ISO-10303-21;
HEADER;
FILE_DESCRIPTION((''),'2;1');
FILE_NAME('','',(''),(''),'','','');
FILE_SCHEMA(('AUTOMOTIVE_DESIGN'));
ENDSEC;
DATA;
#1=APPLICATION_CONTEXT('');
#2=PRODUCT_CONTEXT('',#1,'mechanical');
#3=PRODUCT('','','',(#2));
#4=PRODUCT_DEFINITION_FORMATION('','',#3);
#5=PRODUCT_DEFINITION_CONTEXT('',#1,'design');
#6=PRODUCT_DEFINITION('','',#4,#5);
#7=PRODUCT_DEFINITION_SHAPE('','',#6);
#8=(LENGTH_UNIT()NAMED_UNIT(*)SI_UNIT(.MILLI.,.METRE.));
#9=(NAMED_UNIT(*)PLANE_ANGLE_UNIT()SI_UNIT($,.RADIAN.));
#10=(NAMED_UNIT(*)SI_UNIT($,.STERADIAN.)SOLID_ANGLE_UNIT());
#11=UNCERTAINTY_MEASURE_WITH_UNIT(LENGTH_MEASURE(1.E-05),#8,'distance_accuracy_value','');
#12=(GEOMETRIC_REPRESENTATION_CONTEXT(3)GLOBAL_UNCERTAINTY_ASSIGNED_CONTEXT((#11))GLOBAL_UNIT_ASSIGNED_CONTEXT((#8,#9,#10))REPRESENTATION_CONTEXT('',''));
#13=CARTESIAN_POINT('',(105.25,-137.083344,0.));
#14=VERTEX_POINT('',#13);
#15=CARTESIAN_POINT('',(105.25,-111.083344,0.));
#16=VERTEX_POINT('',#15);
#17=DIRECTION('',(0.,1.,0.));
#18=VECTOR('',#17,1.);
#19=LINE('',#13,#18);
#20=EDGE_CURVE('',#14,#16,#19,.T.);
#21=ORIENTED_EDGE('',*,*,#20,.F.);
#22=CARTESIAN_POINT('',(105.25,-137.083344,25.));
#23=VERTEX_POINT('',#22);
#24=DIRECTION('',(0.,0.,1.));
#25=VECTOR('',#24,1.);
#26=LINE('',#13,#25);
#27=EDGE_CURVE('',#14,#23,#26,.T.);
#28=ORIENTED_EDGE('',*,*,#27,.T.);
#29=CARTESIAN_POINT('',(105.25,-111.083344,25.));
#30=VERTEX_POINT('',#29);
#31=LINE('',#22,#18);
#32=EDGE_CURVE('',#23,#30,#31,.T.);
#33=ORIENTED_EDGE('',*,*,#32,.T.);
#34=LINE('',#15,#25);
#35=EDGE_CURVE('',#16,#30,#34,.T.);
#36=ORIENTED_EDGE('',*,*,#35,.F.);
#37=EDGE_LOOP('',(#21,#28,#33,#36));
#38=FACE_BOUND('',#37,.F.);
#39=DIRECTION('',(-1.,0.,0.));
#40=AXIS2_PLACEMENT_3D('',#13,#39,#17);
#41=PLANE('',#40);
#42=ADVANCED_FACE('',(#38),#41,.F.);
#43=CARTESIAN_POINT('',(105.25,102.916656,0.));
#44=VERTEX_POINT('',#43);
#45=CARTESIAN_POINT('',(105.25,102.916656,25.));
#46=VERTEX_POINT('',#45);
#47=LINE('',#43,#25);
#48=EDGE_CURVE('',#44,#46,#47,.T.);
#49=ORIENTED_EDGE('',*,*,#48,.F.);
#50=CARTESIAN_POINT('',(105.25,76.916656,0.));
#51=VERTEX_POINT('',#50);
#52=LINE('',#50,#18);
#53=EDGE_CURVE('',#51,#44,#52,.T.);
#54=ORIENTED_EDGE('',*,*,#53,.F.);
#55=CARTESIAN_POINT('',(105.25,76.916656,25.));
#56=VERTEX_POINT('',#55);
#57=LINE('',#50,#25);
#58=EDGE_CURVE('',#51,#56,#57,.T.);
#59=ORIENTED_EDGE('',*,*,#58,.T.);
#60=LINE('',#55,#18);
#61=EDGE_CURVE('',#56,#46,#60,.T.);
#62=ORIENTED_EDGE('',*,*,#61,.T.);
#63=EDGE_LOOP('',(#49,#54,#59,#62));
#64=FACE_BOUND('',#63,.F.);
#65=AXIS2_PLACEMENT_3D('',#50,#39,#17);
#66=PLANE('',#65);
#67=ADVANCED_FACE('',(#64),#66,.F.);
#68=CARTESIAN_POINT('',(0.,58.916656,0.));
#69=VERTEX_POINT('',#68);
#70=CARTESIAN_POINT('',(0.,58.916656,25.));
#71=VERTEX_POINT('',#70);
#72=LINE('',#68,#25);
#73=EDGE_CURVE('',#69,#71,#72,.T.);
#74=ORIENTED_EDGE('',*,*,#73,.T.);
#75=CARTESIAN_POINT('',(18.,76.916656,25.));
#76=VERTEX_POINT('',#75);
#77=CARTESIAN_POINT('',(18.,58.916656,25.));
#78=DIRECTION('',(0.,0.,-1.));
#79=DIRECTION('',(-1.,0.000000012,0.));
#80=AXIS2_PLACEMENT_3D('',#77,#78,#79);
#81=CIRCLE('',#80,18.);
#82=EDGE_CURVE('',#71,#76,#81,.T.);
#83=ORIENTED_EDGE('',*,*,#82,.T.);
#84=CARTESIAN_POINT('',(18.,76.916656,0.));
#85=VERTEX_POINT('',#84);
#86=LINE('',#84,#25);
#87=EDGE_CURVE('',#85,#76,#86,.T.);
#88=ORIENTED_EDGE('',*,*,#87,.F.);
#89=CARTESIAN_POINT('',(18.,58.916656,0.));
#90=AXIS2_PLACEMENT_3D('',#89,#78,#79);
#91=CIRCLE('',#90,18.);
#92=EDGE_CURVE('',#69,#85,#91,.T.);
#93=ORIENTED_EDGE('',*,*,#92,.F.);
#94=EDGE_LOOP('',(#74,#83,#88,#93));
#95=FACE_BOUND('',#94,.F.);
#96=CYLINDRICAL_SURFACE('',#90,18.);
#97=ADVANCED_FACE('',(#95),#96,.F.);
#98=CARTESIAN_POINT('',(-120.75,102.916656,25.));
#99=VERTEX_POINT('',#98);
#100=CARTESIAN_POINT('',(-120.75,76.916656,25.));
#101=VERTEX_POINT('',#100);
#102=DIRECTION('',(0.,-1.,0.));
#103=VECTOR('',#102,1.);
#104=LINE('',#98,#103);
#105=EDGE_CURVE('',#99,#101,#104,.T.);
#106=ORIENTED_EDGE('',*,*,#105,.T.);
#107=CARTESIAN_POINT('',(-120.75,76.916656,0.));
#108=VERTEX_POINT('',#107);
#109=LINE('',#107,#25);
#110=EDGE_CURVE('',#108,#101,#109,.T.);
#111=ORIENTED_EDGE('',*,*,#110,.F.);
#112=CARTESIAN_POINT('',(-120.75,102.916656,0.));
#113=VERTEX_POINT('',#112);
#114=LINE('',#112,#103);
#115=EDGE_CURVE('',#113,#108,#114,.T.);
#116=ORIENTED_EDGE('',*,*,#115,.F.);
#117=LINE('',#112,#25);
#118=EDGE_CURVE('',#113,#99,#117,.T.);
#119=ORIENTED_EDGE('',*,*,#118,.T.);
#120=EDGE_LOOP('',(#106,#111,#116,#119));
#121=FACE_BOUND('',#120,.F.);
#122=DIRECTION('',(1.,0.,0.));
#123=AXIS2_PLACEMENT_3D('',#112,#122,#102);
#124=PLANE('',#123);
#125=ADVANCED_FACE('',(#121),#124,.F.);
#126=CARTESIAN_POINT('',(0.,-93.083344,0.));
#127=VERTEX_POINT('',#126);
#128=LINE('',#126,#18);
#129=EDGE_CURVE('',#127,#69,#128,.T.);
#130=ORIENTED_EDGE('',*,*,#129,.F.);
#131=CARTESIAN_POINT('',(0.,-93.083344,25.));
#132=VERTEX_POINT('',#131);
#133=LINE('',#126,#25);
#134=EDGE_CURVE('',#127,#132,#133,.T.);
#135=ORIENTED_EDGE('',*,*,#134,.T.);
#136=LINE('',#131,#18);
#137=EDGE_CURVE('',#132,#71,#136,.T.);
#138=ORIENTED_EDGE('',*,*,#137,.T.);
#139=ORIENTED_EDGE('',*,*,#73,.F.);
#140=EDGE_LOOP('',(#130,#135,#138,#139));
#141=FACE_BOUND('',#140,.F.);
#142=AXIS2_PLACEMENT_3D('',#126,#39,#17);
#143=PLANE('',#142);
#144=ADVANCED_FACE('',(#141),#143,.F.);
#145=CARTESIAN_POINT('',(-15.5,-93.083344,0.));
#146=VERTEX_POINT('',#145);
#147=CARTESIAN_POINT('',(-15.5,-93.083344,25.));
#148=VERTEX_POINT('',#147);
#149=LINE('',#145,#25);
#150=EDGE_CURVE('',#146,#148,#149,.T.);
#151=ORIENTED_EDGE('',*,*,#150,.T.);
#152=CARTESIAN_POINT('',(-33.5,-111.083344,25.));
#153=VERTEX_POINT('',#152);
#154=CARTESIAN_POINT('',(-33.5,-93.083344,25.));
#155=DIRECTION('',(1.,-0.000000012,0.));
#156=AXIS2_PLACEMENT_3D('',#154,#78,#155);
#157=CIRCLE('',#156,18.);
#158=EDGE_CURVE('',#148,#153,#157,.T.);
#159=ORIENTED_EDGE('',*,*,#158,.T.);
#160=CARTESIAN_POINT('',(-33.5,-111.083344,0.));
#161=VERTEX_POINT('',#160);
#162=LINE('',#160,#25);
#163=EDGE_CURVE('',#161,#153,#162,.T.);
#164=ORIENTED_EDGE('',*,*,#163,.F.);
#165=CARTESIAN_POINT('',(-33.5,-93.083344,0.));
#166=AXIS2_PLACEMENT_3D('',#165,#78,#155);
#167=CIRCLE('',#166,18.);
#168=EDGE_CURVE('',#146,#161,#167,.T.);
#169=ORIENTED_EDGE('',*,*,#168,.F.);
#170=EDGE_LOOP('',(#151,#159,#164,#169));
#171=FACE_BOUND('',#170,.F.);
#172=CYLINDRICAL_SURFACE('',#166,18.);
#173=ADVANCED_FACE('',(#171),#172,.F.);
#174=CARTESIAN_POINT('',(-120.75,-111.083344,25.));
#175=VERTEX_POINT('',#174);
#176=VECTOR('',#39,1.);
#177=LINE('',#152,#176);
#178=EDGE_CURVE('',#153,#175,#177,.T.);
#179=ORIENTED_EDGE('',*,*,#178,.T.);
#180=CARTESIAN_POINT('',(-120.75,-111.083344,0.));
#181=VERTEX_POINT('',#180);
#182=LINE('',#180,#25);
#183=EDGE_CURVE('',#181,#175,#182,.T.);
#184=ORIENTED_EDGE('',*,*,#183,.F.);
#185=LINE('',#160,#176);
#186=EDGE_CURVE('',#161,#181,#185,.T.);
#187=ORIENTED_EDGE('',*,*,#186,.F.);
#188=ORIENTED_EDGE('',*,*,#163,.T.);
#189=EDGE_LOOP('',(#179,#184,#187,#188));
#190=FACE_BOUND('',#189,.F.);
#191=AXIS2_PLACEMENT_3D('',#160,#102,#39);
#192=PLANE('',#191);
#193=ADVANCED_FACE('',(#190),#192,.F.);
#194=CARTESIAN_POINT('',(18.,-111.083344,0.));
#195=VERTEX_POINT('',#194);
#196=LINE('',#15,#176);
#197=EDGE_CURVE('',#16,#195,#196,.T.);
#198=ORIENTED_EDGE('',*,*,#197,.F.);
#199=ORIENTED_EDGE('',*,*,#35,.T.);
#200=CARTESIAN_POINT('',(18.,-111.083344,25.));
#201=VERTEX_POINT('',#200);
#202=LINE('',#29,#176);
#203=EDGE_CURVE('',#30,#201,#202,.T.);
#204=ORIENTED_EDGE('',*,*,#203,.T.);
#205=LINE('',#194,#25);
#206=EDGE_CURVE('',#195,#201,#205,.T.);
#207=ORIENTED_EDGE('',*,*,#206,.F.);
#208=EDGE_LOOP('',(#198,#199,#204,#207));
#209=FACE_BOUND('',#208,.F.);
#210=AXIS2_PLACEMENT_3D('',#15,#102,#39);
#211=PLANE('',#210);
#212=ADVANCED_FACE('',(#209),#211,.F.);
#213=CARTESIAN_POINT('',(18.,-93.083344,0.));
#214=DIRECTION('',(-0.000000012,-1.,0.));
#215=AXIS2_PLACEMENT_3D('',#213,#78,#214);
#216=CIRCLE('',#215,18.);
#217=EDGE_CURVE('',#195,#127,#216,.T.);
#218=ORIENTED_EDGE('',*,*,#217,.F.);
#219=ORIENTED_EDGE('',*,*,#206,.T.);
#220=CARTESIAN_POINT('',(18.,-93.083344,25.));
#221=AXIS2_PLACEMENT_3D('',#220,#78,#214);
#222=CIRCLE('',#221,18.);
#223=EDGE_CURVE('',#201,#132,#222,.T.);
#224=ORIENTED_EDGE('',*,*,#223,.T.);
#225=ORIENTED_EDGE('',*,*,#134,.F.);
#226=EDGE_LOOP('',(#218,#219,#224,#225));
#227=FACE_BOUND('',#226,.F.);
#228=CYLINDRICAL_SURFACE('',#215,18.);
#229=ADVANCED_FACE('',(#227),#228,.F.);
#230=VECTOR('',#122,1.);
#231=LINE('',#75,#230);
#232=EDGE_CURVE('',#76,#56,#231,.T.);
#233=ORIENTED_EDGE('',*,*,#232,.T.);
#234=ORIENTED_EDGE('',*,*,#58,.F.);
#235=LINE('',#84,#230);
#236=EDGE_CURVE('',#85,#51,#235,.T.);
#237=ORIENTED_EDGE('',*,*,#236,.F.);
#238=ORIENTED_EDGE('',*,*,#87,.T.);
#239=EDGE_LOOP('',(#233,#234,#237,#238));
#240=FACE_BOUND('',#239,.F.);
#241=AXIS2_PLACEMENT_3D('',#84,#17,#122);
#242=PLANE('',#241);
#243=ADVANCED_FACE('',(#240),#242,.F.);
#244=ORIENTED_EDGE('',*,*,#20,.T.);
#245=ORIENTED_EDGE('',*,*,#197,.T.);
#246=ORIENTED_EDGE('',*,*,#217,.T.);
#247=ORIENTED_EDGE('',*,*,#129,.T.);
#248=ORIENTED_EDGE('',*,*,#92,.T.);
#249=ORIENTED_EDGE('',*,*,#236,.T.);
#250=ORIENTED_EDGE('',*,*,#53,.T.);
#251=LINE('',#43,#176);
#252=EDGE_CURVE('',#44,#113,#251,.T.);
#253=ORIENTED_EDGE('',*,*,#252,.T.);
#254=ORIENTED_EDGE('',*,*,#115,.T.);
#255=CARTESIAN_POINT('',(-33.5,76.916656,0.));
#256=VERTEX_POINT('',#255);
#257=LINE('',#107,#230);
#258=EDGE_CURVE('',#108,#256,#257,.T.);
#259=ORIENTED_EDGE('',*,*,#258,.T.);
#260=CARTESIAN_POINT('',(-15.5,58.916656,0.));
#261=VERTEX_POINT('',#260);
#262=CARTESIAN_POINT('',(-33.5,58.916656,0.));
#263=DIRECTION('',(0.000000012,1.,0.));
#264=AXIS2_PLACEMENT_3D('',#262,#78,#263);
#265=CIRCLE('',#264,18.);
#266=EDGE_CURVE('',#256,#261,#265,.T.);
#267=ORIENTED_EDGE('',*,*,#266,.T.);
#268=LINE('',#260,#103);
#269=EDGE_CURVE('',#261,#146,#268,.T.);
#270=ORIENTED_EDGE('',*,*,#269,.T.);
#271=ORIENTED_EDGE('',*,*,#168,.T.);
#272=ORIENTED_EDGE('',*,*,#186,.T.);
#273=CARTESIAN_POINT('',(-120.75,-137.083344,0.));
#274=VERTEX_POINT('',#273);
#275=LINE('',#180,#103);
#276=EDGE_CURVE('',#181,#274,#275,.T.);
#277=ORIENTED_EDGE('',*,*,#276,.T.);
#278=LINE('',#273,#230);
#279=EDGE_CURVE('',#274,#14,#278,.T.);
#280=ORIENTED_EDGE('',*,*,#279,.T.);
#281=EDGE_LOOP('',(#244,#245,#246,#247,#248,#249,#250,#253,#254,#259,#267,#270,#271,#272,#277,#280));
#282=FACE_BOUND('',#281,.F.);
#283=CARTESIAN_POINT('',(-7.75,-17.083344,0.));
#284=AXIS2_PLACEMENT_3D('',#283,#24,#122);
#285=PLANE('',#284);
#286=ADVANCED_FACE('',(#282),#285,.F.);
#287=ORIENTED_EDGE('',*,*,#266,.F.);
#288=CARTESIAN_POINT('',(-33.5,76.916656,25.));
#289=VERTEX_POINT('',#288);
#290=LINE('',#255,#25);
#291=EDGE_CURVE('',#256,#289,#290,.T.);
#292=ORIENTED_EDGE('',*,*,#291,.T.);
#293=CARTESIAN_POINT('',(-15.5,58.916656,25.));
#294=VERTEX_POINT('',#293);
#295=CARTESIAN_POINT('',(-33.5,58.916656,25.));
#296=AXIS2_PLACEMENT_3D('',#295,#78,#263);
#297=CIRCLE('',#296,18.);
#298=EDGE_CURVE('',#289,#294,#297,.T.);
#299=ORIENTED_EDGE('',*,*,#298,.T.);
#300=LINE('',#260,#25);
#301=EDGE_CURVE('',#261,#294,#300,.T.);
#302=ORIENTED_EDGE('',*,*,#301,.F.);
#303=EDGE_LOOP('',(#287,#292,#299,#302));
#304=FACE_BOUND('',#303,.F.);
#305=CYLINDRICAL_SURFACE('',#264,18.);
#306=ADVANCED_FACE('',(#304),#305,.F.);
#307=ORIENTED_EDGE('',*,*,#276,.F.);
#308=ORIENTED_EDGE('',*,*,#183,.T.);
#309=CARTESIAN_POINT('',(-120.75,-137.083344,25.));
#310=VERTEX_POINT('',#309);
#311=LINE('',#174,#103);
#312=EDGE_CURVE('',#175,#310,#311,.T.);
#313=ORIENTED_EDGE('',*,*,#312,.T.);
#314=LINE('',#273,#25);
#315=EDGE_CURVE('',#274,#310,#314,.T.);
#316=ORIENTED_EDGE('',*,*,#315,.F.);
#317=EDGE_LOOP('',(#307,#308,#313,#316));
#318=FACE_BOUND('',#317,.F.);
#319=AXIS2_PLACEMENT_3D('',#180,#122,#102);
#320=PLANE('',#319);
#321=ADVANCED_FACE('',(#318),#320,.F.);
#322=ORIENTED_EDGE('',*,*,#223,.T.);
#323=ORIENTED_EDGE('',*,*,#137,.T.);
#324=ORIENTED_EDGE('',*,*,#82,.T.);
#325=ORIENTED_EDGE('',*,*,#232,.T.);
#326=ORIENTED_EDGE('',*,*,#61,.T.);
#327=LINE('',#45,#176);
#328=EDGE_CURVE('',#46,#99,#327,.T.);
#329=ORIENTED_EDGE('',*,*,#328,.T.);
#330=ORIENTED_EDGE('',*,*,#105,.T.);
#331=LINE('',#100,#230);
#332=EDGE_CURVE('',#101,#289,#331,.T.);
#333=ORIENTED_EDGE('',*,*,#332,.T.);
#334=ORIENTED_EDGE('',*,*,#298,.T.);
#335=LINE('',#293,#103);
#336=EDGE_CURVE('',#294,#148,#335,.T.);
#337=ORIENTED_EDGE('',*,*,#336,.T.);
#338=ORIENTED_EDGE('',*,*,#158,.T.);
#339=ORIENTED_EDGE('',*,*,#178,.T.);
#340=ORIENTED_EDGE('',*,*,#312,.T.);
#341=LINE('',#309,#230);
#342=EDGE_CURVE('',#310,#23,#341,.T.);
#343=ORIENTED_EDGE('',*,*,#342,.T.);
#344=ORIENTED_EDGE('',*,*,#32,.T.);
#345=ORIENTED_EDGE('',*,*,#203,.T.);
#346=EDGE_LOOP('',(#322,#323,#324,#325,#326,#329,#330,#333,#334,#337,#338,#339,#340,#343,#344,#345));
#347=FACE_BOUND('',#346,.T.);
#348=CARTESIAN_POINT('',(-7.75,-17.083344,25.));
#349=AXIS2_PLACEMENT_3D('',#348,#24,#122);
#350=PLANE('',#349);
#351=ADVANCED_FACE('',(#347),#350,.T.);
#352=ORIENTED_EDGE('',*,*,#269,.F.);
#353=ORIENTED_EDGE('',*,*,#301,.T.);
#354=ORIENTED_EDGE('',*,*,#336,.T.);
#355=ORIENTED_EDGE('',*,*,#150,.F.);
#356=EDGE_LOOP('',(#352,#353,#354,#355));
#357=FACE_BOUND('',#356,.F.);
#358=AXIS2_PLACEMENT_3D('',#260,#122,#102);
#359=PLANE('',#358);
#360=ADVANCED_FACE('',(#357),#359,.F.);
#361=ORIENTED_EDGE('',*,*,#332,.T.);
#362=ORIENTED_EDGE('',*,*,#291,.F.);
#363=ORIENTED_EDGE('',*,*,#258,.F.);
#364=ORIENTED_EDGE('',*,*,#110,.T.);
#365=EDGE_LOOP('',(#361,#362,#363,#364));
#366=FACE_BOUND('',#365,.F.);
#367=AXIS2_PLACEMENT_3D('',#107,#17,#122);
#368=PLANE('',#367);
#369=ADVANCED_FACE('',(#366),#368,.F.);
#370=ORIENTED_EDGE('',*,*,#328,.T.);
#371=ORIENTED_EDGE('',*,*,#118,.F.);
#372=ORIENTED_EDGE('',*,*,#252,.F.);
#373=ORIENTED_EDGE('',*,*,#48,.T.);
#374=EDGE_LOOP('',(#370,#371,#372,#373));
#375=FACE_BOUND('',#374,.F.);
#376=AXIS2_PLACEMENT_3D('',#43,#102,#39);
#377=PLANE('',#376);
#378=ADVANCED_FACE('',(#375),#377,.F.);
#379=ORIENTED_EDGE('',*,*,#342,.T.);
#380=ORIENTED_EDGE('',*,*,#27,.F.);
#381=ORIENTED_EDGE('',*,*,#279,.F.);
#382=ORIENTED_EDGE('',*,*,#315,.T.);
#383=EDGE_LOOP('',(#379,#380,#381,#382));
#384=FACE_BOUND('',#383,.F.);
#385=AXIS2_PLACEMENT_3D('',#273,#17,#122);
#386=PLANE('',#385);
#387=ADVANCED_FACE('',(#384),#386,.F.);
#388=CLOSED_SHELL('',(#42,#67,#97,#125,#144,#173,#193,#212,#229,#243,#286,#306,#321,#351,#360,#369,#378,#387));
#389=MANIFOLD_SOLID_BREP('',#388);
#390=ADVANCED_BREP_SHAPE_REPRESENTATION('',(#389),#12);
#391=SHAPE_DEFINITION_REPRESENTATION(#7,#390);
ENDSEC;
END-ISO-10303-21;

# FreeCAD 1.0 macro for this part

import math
import FreeCAD as App
import Part
import Sketcher
Q = App.Units.Quantity

doc = App.newDocument("Part")
body = doc.addObject("PartDesign::Body", "Body")

sketch1 = body.newObject("Sketcher::SketchObject", "Sketch")
sketch1.AttachmentSupport = (doc.getObject("XY_Plane"), [""])
sketch1.MapMode = "FlatFace"
sketch1.addGeometry(Part.LineSegment(App.Vector(105, 103, 0), App.Vector(-121, 103, 0)), False)
sketch1.addGeometry(Part.LineSegment(App.Vector(-121, 103, 0), App.Vector(-121, 77, 0)), False)
sketch1.addGeometry(Part.LineSegment(App.Vector(-121, 77, 0), App.Vector(-34, 77, 0)), False)
sketch1.addGeometry(Part.ArcOfCircle(Part.Circle(App.Vector(-34, 59, 0), App.Vector(0, 0, 1), 18), math.radians(0), math.radians(90)), False)
sketch1.addGeometry(Part.LineSegment(App.Vector(-16, 59, 0), App.Vector(-16, -93, 0)), False)
sketch1.addGeometry(Part.ArcOfCircle(Part.Circle(App.Vector(-34, -93, 0), App.Vector(0, 0, 1), 18), math.radians(-90), math.radians(0)), False)
sketch1.addGeometry(Part.LineSegment(App.Vector(-34, -111, 0), App.Vector(-121, -111, 0)), False)
sketch1.addGeometry(Part.LineSegment(App.Vector(-121, -111, 0), App.Vector(-121, -137, 0)), False)
sketch1.addGeometry(Part.LineSegment(App.Vector(-121, -137, 0), App.Vector(105, -137, 0)), False)
sketch1.addGeometry(Part.LineSegment(App.Vector(105, -137, 0), App.Vector(105, -111, 0)), False)
sketch1.addGeometry(Part.LineSegment(App.Vector(105, -111, 0), App.Vector(18, -111, 0)), False)
sketch1.addGeometry(Part.ArcOfCircle(Part.Circle(App.Vector(18, -93, 0), App.Vector(0, 0, 1), 18), math.radians(-180), math.radians(-90)), False)
sketch1.addGeometry(Part.LineSegment(App.Vector(0, -93, 0), App.Vector(0, 59, 0)), False)
sketch1.addGeometry(Part.ArcOfCircle(Part.Circle(App.Vector(18, 59, 0), App.Vector(0, 0, 1), 18), math.radians(90), math.radians(180)), False)
sketch1.addGeometry(Part.LineSegment(App.Vector(18, 77, 0), App.Vector(105, 77, 0)), False)
sketch1.addGeometry(Part.LineSegment(App.Vector(105, 77, 0), App.Vector(105, 103, 0)), False)
sketch1.addConstraint(Sketcher.Constraint("Coincident", 0, 2, 1, 1))
sketch1.addConstraint(Sketcher.Constraint("Coincident", 1, 2, 2, 1))
sketch1.addConstraint(Sketcher.Constraint("Tangent", 2, 2, 3, 2))
sketch1.addConstraint(Sketcher.Constraint("Tangent", 3, 1, 4, 1))
sketch1.addConstraint(Sketcher.Constraint("Tangent", 4, 2, 5, 2))
sketch1.addConstraint(Sketcher.Constraint("Tangent", 5, 1, 6, 1))
sketch1.addConstraint(Sketcher.Constraint("Coincident", 6, 2, 7, 1))
sketch1.addConstraint(Sketcher.Constraint("Coincident", 7, 2, 8, 1))
sketch1.addConstraint(Sketcher.Constraint("Coincident", 8, 2, 9, 1))
sketch1.addConstraint(Sketcher.Constraint("Coincident", 9, 2, 10, 1))
sketch1.addConstraint(Sketcher.Constraint("Tangent", 10, 2, 11, 2))
sketch1.addConstraint(Sketcher.Constraint("Tangent", 11, 1, 12, 1))
sketch1.addConstraint(Sketcher.Constraint("Tangent", 12, 2, 13, 2))
sketch1.addConstraint(Sketcher.Constraint("Tangent", 13, 1, 14, 1))
sketch1.addConstraint(Sketcher.Constraint("Coincident", 14, 2, 15, 1))
sketch1.addConstraint(Sketcher.Constraint("Coincident", 15, 2, 0, 1))
sketch1.addConstraint(Sketcher.Constraint("Horizontal", 0))
sketch1.addConstraint(Sketcher.Constraint("Vertical", 1))
sketch1.addConstraint(Sketcher.Constraint("Horizontal", 2))
sketch1.addConstraint(Sketcher.Constraint("Vertical", 4))
sketch1.addConstraint(Sketcher.Constraint("Horizontal", 6))
sketch1.addConstraint(Sketcher.Constraint("Vertical", 7))
sketch1.addConstraint(Sketcher.Constraint("Horizontal", 8))
sketch1.addConstraint(Sketcher.Constraint("Vertical", 9))
sketch1.addConstraint(Sketcher.Constraint("Horizontal", 10))
sketch1.addConstraint(Sketcher.Constraint("Vertical", 12))
sketch1.addConstraint(Sketcher.Constraint("Horizontal", 14))
sketch1.addConstraint(Sketcher.Constraint("Vertical", 15))
sketch1.addConstraint(Sketcher.Constraint("Equal", 3, 5))
sketch1.addConstraint(Sketcher.Constraint("Equal", 5, 11))
sketch1.addConstraint(Sketcher.Constraint("Equal", 11, 13))
sketch1.addConstraint(Sketcher.Constraint("PointOnObject", 11, 1, -2))
sketch1.addConstraint(Sketcher.Constraint("Horizontal", 5, 3, 11, 3))
sketch1.addConstraint(Sketcher.Constraint("Horizontal", 3, 3, 13, 3))
sketch1.addConstraint(Sketcher.Constraint("Vertical", 1, 2, 6, 2))
sketch1.addConstraint(Sketcher.Constraint("Vertical", 9, 2, 14, 2))
sketch1.addConstraint(Sketcher.Constraint("Equal", 6, 10))
sketch1.addConstraint(Sketcher.Constraint("Equal", 1, 7))
sketch1.addConstraint(Sketcher.Constraint("Radius", 3, Q("18 mm")))
sketch1.addConstraint(Sketcher.Constraint("DistanceX", 0, 2, 0, 1, Q("226 mm")))
sketch1.addConstraint(Sketcher.Constraint("DistanceY", 1, 2, 1, 1, Q("26 mm")))
sketch1.addConstraint(Sketcher.Constraint("DistanceY", 4, 2, 4, 1, Q("152 mm")))
sketch1.addConstraint(Sketcher.Constraint("DistanceX", 2, 1, 2, 2, Q("87.25 mm")))
sketch1.addConstraint(Sketcher.Constraint("DistanceY", -1, 1, 3, 3, Q("58.916656 mm")))
pad1 = body.newObject("PartDesign::Pad", "Pad")
pad1.Profile = sketch1
pad1.Length = 25

doc.recompute()
